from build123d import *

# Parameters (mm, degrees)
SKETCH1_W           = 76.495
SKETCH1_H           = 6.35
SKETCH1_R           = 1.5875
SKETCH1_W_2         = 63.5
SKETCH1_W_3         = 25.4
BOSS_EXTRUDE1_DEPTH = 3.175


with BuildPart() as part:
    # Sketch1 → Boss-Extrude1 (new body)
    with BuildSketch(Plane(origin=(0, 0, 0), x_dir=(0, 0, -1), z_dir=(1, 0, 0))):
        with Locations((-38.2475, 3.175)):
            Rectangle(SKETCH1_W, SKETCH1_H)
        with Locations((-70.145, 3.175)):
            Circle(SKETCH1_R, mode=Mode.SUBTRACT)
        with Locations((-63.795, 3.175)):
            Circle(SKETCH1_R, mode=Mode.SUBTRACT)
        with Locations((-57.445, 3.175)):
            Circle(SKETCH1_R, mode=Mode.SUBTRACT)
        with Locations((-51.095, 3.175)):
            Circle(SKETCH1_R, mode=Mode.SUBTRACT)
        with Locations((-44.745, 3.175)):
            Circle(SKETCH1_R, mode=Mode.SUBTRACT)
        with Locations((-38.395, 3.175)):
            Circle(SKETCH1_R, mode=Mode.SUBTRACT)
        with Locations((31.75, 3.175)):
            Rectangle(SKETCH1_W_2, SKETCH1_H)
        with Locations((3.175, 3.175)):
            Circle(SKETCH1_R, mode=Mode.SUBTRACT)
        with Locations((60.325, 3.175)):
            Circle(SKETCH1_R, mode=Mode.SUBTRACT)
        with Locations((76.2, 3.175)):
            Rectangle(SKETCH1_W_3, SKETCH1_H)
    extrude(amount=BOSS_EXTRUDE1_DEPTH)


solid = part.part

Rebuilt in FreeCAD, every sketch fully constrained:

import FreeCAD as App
import Part
import Sketcher
from FreeCAD import Vector
Q = App.Units.Quantity


def add_polygon(sketch, points):
    """Adds a closed chain of lines whose ends are joined by coincident constraints."""
    first, n = sketch.GeometryCount, len(points)
    for a, b in zip(points, points[1:] + points[:1]):
        sketch.addGeometry(Part.LineSegment(App.Vector(*a, 0), App.Vector(*b, 0)), False)
    for i in range(n):
        sketch.addConstraint(Sketcher.Constraint("Coincident", first + i, 2, first + (i + 1) % n, 1))

doc = App.newDocument("Part")
body = doc.addObject("PartDesign::Body", "Body")

# Sketch on YZ plane
sketch1 = body.newObject("Sketcher::SketchObject", "Sketch")
sketch1.AttachmentSupport = (doc.getObject("YZ_Plane"), [""])
sketch1.MapMode = "FlatFace"
add_polygon(sketch1, [(6.35, 76.495), (0, 76.495), (0, -88.9), (6.35, -88.9)])  # lines 0-3
sketch1.addGeometry(Part.Circle(Vector(3.175, 70.145, 0), Vector(0, 0, 1), 1.5875), False)  # 4
sketch1.addGeometry(Part.Circle(Vector(3.175, 63.795, 0), Vector(0, 0, 1), 1.5875), False)  # 5
sketch1.addGeometry(Part.Circle(Vector(3.175, 57.445, 0), Vector(0, 0, 1), 1.5875), False)  # 6
sketch1.addGeometry(Part.Circle(Vector(3.175, 51.095, 0), Vector(0, 0, 1), 1.5875), False)  # 7
sketch1.addGeometry(Part.Circle(Vector(3.175, 44.745, 0), Vector(0, 0, 1), 1.5875), False)  # 8
sketch1.addGeometry(Part.Circle(Vector(3.175, 38.395, 0), Vector(0, 0, 1), 1.5875), False)  # 9
sketch1.addGeometry(Part.Circle(Vector(3.175, -3.175, 0), Vector(0, 0, 1), 1.5875), False)  # 10
sketch1.addGeometry(Part.Circle(Vector(3.175, -60.325, 0), Vector(0, 0, 1), 1.5875), False)  # 11
sketch1.addConstraint(Sketcher.Constraint("Horizontal", 0))
sketch1.addConstraint(Sketcher.Constraint("Vertical", 1))
sketch1.addConstraint(Sketcher.Constraint("Horizontal", 2))
sketch1.addConstraint(Sketcher.Constraint("Vertical", 3))
sketch1.addConstraint(Sketcher.Constraint("Equal", 4, 5))
sketch1.addConstraint(Sketcher.Constraint("Equal", 5, 6))
sketch1.addConstraint(Sketcher.Constraint("Equal", 6, 7))
sketch1.addConstraint(Sketcher.Constraint("Equal", 7, 8))
sketch1.addConstraint(Sketcher.Constraint("Equal", 8, 9))
sketch1.addConstraint(Sketcher.Constraint("Equal", 9, 10))
sketch1.addConstraint(Sketcher.Constraint("Equal", 10, 11))
sketch1.addConstraint(Sketcher.Constraint("PointOnObject", 0, 2, -2))
sketch1.addConstraint(Sketcher.Constraint("Vertical", 4, 3, 5, 3))
sketch1.addConstraint(Sketcher.Constraint("Vertical", 5, 3, 6, 3))
sketch1.addConstraint(Sketcher.Constraint("Vertical", 6, 3, 7, 3))
sketch1.addConstraint(Sketcher.Constraint("Vertical", 7, 3, 8, 3))
sketch1.addConstraint(Sketcher.Constraint("Vertical", 8, 3, 9, 3))
sketch1.addConstraint(Sketcher.Constraint("Vertical", 9, 3, 10, 3))
sketch1.addConstraint(Sketcher.Constraint("Vertical", 10, 3, 11, 3))
sketch1.addConstraint(Sketcher.Constraint("Diameter", 4, Q("0.125 in")))
sketch1.addConstraint(Sketcher.Constraint("DistanceY", 8, 3, 4, 3, Q("1 in")))
sketch1.addConstraint(Sketcher.Constraint("DistanceY", 9, 3, 5, 3, Q("1 in")))
sketch1.addConstraint(Sketcher.Constraint("DistanceY", 7, 3, 0, 2, Q("1 in")))
sketch1.addConstraint(Sketcher.Constraint("DistanceX", 0, 2, 0, 1, Q("0.25 in")))
sketch1.addConstraint(Sketcher.Constraint("DistanceY", 1, 2, -1, 1, Q("3.5 in")))
sketch1.addConstraint(Sketcher.Constraint("DistanceY", 6, 3, 4, 3, Q("0.5 in")))
sketch1.addConstraint(Sketcher.Constraint("DistanceY", 7, 3, 5, 3, Q("0.5 in")))
sketch1.addConstraint(Sketcher.Constraint("DistanceY", 5, 3, 4, 3, Q("0.25 in")))
sketch1.addConstraint(Sketcher.Constraint("DistanceY", 11, 3, 10, 3, Q("2.25 in")))
sketch1.addConstraint(Sketcher.Constraint("DistanceX", -1, 1, 4, 3, Q("0.125 in")))
sketch1.addConstraint(Sketcher.Constraint("DistanceY", 10, 3, -1, 1, Q("0.125 in")))
sketch1.addConstraint(Sketcher.Constraint("DistanceY", 1, 2, 1, 1, 165.395))
pad1 = body.newObject("PartDesign::Pad", "Pad")
pad1.Profile = sketch1
pad1.Length = Q("0.125 in")

doc.recompute()
